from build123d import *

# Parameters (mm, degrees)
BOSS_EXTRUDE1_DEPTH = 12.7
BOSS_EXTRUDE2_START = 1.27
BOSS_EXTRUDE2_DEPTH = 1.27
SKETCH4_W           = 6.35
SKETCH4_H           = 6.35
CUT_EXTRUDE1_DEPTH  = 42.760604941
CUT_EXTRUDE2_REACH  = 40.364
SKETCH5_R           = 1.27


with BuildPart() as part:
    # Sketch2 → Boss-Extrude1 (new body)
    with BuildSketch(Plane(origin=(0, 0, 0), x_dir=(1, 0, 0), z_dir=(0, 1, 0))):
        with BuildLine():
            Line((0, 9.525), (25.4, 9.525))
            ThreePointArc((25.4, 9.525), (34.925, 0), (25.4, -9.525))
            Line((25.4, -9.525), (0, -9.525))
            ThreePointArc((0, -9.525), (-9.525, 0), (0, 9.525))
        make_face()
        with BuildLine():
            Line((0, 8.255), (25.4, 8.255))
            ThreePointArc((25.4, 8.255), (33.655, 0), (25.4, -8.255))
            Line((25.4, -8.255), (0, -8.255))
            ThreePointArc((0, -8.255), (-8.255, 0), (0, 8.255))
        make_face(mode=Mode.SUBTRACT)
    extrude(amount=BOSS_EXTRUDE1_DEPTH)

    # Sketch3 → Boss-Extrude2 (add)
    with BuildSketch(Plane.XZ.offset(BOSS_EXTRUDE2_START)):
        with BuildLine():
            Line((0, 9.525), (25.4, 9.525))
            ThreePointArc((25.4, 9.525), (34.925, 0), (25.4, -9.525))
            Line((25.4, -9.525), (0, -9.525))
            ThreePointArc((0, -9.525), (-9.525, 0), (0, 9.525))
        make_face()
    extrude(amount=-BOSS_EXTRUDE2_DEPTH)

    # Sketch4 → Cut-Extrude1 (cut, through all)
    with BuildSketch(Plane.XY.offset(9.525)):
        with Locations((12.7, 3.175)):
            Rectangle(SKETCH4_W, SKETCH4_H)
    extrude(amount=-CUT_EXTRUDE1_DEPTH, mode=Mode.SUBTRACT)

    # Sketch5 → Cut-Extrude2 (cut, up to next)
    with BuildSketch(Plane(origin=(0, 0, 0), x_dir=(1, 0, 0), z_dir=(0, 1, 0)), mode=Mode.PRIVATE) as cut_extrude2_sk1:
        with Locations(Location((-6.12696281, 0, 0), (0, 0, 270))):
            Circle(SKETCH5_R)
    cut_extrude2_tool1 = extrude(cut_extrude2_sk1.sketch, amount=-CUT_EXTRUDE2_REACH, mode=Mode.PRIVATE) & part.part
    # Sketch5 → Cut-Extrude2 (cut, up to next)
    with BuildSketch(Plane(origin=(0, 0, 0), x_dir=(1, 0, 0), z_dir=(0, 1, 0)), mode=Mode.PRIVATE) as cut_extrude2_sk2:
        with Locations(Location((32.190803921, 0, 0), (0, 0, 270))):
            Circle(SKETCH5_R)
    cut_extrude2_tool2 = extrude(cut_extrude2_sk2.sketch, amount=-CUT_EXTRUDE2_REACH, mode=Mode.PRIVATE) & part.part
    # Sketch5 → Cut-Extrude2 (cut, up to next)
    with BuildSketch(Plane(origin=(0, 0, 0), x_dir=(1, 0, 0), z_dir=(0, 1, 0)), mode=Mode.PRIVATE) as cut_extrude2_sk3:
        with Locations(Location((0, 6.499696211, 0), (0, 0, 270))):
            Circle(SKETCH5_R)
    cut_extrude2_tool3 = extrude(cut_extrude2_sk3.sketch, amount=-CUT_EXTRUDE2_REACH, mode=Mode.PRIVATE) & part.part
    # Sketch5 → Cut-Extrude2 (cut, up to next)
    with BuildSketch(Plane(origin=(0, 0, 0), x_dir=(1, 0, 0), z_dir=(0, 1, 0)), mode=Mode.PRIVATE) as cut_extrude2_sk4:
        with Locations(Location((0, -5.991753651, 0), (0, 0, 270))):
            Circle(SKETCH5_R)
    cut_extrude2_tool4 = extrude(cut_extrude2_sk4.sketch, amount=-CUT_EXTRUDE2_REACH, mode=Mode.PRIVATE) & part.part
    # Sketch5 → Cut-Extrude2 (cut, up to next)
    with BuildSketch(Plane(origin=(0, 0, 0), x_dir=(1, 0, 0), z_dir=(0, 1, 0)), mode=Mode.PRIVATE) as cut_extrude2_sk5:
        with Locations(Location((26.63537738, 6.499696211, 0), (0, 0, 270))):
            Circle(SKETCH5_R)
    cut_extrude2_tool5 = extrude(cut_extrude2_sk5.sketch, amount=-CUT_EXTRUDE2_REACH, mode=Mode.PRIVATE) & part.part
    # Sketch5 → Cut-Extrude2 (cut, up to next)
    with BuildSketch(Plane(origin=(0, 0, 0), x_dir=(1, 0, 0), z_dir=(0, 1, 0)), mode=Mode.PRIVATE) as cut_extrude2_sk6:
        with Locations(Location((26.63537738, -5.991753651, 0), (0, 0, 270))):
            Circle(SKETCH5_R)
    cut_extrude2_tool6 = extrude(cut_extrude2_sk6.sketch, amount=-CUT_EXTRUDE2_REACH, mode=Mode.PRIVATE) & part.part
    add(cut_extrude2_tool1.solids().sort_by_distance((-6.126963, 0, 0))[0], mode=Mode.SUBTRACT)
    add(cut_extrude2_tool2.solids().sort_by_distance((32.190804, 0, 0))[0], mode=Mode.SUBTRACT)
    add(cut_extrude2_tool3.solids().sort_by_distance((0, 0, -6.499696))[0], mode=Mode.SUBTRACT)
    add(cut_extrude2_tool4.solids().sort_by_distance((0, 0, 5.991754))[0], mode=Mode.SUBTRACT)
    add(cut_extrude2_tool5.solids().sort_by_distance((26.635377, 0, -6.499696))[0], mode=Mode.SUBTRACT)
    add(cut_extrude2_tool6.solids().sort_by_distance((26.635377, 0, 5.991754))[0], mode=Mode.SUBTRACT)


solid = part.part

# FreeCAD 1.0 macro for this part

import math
import FreeCAD as App
import Part
import Sketcher
from FreeCAD import Vector
Q = App.Units.Quantity


def add_polygon(sketch, points):
    """Adds a closed chain of lines whose ends are joined by coincident constraints."""
    first, n = sketch.GeometryCount, len(points)
    for a, b in zip(points, points[1:] + points[:1]):
        sketch.addGeometry(Part.LineSegment(App.Vector(*a, 0), App.Vector(*b, 0)), False)
    for i in range(n):
        sketch.addConstraint(Sketcher.Constraint("Coincident", first + i, 2, first + (i + 1) % n, 1))

doc = App.newDocument("Part")
body = doc.addObject("PartDesign::Body", "Body")

sketch1 = body.newObject("Sketcher::SketchObject", "Sketch")
sketch1.AttachmentSupport = (doc.getObject("XZ_Plane"), [""])
sketch1.MapMode = "FlatFace"
sketch1.addGeometry(Part.LineSegment(Vector(25, -10, 0), Vector(0, -10, 0)), False)
sketch1.addGeometry(Part.ArcOfCircle(Part.Circle(Vector(0, 0, 0), Vector(0, 0, 1), 10), math.radians(90), math.radians(270)), False)
sketch1.addGeometry(Part.LineSegment(Vector(0, 10, 0), Vector(25, 10, 0)), False)
sketch1.addGeometry(Part.ArcOfCircle(Part.Circle(Vector(25, 0, 0), Vector(0, 0, 1), 10), math.radians(-90), math.radians(90)), False)
sketch1.addGeometry(Part.LineSegment(Vector(0, -8, 0), Vector(25, -8, 0)), False)
sketch1.addGeometry(Part.ArcOfCircle(Part.Circle(Vector(25, 0, 0), Vector(0, 0, 1), 8), math.radians(-90), math.radians(90)), False)
sketch1.addGeometry(Part.LineSegment(Vector(25, 8, 0), Vector(0, 8, 0)), False)
sketch1.addGeometry(Part.ArcOfCircle(Part.Circle(Vector(0, 0, 0), Vector(0, 0, 1), 8), math.radians(90), math.radians(270)), False)
sketch1.addConstraint(Sketcher.Constraint("Tangent", 0, 2, 1, 2))
sketch1.addConstraint(Sketcher.Constraint("Tangent", 1, 1, 2, 1))
sketch1.addConstraint(Sketcher.Constraint("Tangent", 2, 2, 3, 2))
sketch1.addConstraint(Sketcher.Constraint("Tangent", 3, 1, 0, 1))
sketch1.addConstraint(Sketcher.Constraint("Tangent", 4, 2, 5, 1))
sketch1.addConstraint(Sketcher.Constraint("Tangent", 5, 2, 6, 1))
sketch1.addConstraint(Sketcher.Constraint("Tangent", 6, 2, 7, 1))
sketch1.addConstraint(Sketcher.Constraint("Tangent", 7, 2, 4, 1))
sketch1.addConstraint(Sketcher.Constraint("Horizontal", 0))
sketch1.addConstraint(Sketcher.Constraint("Horizontal", 2))
sketch1.addConstraint(Sketcher.Constraint("Horizontal", 4))
sketch1.addConstraint(Sketcher.Constraint("Horizontal", 6))
sketch1.addConstraint(Sketcher.Constraint("Coincident", 1, 3, -1, 1))
sketch1.addConstraint(Sketcher.Constraint("Coincident", 7, 3, -1, 1))
sketch1.addConstraint(Sketcher.Constraint("Vertical", 5, 3, 2, 2))
sketch1.addConstraint(Sketcher.Constraint("DistanceX", 0, 2, 0, 1, Q("1 in")))
sketch1.addConstraint(Sketcher.Constraint("Radius", 1, Q("0.375 in")))
sketch1.addConstraint(Sketcher.Constraint("Radius", 5, Q("0.325 in")))
pad1 = body.newObject("PartDesign::Pad", "Pad")
pad1.Profile = sketch1
pad1.Length = Q("0.5 in")
pad1.Reversed = True

sketch2 = body.newObject("Sketcher::SketchObject", "Sketch001")
sketch2.AttachmentSupport = (doc.getObject("XZ_Plane"), [""])
sketch2.MapMode = "FlatFace"
sketch2.AttachmentOffset = App.Placement(Vector(0, 0, 0.05 * 25.4), App.Rotation())
sketch2.addGeometry(Part.LineSegment(Vector(25, 10, 0), Vector(0, 10, 0)), False)
sketch2.addGeometry(Part.ArcOfCircle(Part.Circle(Vector(0, 0, 0), Vector(0, 0, 1), 10), math.radians(90), math.radians(270)), False)
sketch2.addGeometry(Part.LineSegment(Vector(0, -10, 0), Vector(25, -10, 0)), False)
sketch2.addGeometry(Part.ArcOfCircle(Part.Circle(Vector(25, 0, 0), Vector(0, 0, 1), 10), math.radians(-90), math.radians(90)), False)
sketch2.addConstraint(Sketcher.Constraint("Tangent", 0, 2, 1, 1))
sketch2.addConstraint(Sketcher.Constraint("Tangent", 1, 2, 2, 1))
sketch2.addConstraint(Sketcher.Constraint("Tangent", 2, 2, 3, 1))
sketch2.addConstraint(Sketcher.Constraint("Tangent", 3, 2, 0, 1))
sketch2.addConstraint(Sketcher.Constraint("Horizontal", 0))
sketch2.addConstraint(Sketcher.Constraint("Horizontal", 2))
sketch2.addConstraint(Sketcher.Constraint("Coincident", 1, 3, -1, 1))
sketch2.addConstraint(Sketcher.Constraint("DistanceX", 0, 2, 0, 1, Q("1 in")))
sketch2.addConstraint(Sketcher.Constraint("Radius", 1, Q("0.375 in")))
pad2 = body.newObject("PartDesign::Pad", "Pad001")
pad2.Profile = sketch2
pad2.Length = Q("0.05 in")
pad2.Reversed = True

sketch3 = body.newObject("Sketcher::SketchObject", "Sketch002")
sketch3.AttachmentSupport = (doc.getObject("XY_Plane"), [""])
sketch3.MapMode = "FlatFace"
sketch3.AttachmentOffset = App.Placement(Vector(0, 0, 0.375 * 25.4), App.Rotation())
add_polygon(sketch3, [(10, 6), (10, 0), (16, 0), (16, 6)])
sketch3.addConstraint(Sketcher.Constraint("Vertical", 0))
sketch3.addConstraint(Sketcher.Constraint("Horizontal", 1))
sketch3.addConstraint(Sketcher.Constraint("Vertical", 2))
sketch3.addConstraint(Sketcher.Constraint("Horizontal", 3))
sketch3.addConstraint(Sketcher.Constraint("PointOnObject", 0, 2, -1))
sketch3.addConstraint(Sketcher.Constraint("Equal", 3, 0))
sketch3.addConstraint(Sketcher.Constraint("DistanceX", 1, 1, 1, 2, Q("0.25 in")))
sketch3.addConstraint(Sketcher.Constraint("DistanceX", -1, 1, 0, 2, Q("0.375 in")))
pocket1 = body.newObject("PartDesign::Pocket", "Pocket")
pocket1.Profile = sketch3
pocket1.Type = "ThroughAll"

sketch4 = body.newObject("Sketcher::SketchObject", "Sketch003")
sketch4.AttachmentSupport = (doc.getObject("XZ_Plane"), [""])
sketch4.MapMode = "FlatFace"
sketch4.addGeometry(Part.Circle(Vector(-6.1, 0, 0), Vector(0, 0, 1), 1.3), False)
sketch4.addConstraint(Sketcher.Constraint("PointOnObject", 0, 3, -1))
sketch4.addConstraint(Sketcher.Constraint("Diameter", 0, Q("0.1 in")))
sketch4.addConstraint(Sketcher.Constraint("DistanceX", 0, 3, -1, 1, 6.126963))
pocket2 = body.newObject("PartDesign::Pocket", "Pocket001")
pocket2.Profile = sketch4
pocket2.Type = "UpToFirst"
pocket2.Reversed = True

sketch5 = body.newObject("Sketcher::SketchObject", "Sketch004")
sketch5.AttachmentSupport = (doc.getObject("XZ_Plane"), [""])
sketch5.MapMode = "FlatFace"
sketch5.addGeometry(Part.Circle(Vector(32.2, 0, 0), Vector(0, 0, 1), 1.3), False)
sketch5.addConstraint(Sketcher.Constraint("PointOnObject", 0, 3, -1))
sketch5.addConstraint(Sketcher.Constraint("Diameter", 0, Q("0.1 in")))
sketch5.addConstraint(Sketcher.Constraint("DistanceX", -1, 1, 0, 3, 32.190804))
pocket3 = body.newObject("PartDesign::Pocket", "Pocket002")
pocket3.Profile = sketch5
pocket3.Type = "UpToFirst"
pocket3.Reversed = True

sketch6 = body.newObject("Sketcher::SketchObject", "Sketch005")
sketch6.AttachmentSupport = (doc.getObject("XZ_Plane"), [""])
sketch6.MapMode = "FlatFace"
sketch6.addGeometry(Part.Circle(Vector(0, -6.5, 0), Vector(0, 0, 1), 1.3), False)
sketch6.addConstraint(Sketcher.Constraint("PointOnObject", 0, 3, -2))
sketch6.addConstraint(Sketcher.Constraint("Diameter", 0, Q("0.1 in")))
sketch6.addConstraint(Sketcher.Constraint("DistanceY", 0, 3, -1, 1, 6.499696))
pocket4 = body.newObject("PartDesign::Pocket", "Pocket003")
pocket4.Profile = sketch6
pocket4.Type = "UpToFirst"
pocket4.Reversed = True

sketch7 = body.newObject("Sketcher::SketchObject", "Sketch006")
sketch7.AttachmentSupport = (doc.getObject("XZ_Plane"), [""])
sketch7.MapMode = "FlatFace"
sketch7.addGeometry(Part.Circle(Vector(0, 6, 0), Vector(0, 0, 1), 1.3), False)
sketch7.addConstraint(Sketcher.Constraint("PointOnObject", 0, 3, -2))
sketch7.addConstraint(Sketcher.Constraint("Diameter", 0, Q("0.1 in")))
sketch7.addConstraint(Sketcher.Constraint("DistanceY", -1, 1, 0, 3, 5.991754))
pocket5 = body.newObject("PartDesign::Pocket", "Pocket004")
pocket5.Profile = sketch7
pocket5.Type = "UpToFirst"
pocket5.Reversed = True

sketch8 = body.newObject("Sketcher::SketchObject", "Sketch007")
sketch8.AttachmentSupport = (doc.getObject("XZ_Plane"), [""])
sketch8.MapMode = "FlatFace"
sketch8.addGeometry(Part.Circle(Vector(26.6, -6.5, 0), Vector(0, 0, 1), 1.3), False)
sketch8.addConstraint(Sketcher.Constraint("Diameter", 0, Q("0.1 in")))
sketch8.addConstraint(Sketcher.Constraint("DistanceX", -1, 1, 0, 3, 26.635377))
sketch8.addConstraint(Sketcher.Constraint("DistanceY", 0, 3, -1, 1, 6.499696))
pocket6 = body.newObject("PartDesign::Pocket", "Pocket005")
pocket6.Profile = sketch8
pocket6.Type = "UpToFirst"
pocket6.Reversed = True

sketch9 = body.newObject("Sketcher::SketchObject", "Sketch008")
sketch9.AttachmentSupport = (doc.getObject("XZ_Plane"), [""])
sketch9.MapMode = "FlatFace"
sketch9.addGeometry(Part.Circle(Vector(26.6, 6, 0), Vector(0, 0, 1), 1.3), False)
sketch9.addConstraint(Sketcher.Constraint("Diameter", 0, Q("0.1 in")))
sketch9.addConstraint(Sketcher.Constraint("DistanceX", -1, 1, 0, 3, 26.635377))
sketch9.addConstraint(Sketcher.Constraint("DistanceY", -1, 1, 0, 3, 5.991754))
pocket7 = body.newObject("PartDesign::Pocket", "Pocket006")
pocket7.Profile = sketch9
pocket7.Type = "UpToFirst"
pocket7.Reversed = True

doc.recompute()
